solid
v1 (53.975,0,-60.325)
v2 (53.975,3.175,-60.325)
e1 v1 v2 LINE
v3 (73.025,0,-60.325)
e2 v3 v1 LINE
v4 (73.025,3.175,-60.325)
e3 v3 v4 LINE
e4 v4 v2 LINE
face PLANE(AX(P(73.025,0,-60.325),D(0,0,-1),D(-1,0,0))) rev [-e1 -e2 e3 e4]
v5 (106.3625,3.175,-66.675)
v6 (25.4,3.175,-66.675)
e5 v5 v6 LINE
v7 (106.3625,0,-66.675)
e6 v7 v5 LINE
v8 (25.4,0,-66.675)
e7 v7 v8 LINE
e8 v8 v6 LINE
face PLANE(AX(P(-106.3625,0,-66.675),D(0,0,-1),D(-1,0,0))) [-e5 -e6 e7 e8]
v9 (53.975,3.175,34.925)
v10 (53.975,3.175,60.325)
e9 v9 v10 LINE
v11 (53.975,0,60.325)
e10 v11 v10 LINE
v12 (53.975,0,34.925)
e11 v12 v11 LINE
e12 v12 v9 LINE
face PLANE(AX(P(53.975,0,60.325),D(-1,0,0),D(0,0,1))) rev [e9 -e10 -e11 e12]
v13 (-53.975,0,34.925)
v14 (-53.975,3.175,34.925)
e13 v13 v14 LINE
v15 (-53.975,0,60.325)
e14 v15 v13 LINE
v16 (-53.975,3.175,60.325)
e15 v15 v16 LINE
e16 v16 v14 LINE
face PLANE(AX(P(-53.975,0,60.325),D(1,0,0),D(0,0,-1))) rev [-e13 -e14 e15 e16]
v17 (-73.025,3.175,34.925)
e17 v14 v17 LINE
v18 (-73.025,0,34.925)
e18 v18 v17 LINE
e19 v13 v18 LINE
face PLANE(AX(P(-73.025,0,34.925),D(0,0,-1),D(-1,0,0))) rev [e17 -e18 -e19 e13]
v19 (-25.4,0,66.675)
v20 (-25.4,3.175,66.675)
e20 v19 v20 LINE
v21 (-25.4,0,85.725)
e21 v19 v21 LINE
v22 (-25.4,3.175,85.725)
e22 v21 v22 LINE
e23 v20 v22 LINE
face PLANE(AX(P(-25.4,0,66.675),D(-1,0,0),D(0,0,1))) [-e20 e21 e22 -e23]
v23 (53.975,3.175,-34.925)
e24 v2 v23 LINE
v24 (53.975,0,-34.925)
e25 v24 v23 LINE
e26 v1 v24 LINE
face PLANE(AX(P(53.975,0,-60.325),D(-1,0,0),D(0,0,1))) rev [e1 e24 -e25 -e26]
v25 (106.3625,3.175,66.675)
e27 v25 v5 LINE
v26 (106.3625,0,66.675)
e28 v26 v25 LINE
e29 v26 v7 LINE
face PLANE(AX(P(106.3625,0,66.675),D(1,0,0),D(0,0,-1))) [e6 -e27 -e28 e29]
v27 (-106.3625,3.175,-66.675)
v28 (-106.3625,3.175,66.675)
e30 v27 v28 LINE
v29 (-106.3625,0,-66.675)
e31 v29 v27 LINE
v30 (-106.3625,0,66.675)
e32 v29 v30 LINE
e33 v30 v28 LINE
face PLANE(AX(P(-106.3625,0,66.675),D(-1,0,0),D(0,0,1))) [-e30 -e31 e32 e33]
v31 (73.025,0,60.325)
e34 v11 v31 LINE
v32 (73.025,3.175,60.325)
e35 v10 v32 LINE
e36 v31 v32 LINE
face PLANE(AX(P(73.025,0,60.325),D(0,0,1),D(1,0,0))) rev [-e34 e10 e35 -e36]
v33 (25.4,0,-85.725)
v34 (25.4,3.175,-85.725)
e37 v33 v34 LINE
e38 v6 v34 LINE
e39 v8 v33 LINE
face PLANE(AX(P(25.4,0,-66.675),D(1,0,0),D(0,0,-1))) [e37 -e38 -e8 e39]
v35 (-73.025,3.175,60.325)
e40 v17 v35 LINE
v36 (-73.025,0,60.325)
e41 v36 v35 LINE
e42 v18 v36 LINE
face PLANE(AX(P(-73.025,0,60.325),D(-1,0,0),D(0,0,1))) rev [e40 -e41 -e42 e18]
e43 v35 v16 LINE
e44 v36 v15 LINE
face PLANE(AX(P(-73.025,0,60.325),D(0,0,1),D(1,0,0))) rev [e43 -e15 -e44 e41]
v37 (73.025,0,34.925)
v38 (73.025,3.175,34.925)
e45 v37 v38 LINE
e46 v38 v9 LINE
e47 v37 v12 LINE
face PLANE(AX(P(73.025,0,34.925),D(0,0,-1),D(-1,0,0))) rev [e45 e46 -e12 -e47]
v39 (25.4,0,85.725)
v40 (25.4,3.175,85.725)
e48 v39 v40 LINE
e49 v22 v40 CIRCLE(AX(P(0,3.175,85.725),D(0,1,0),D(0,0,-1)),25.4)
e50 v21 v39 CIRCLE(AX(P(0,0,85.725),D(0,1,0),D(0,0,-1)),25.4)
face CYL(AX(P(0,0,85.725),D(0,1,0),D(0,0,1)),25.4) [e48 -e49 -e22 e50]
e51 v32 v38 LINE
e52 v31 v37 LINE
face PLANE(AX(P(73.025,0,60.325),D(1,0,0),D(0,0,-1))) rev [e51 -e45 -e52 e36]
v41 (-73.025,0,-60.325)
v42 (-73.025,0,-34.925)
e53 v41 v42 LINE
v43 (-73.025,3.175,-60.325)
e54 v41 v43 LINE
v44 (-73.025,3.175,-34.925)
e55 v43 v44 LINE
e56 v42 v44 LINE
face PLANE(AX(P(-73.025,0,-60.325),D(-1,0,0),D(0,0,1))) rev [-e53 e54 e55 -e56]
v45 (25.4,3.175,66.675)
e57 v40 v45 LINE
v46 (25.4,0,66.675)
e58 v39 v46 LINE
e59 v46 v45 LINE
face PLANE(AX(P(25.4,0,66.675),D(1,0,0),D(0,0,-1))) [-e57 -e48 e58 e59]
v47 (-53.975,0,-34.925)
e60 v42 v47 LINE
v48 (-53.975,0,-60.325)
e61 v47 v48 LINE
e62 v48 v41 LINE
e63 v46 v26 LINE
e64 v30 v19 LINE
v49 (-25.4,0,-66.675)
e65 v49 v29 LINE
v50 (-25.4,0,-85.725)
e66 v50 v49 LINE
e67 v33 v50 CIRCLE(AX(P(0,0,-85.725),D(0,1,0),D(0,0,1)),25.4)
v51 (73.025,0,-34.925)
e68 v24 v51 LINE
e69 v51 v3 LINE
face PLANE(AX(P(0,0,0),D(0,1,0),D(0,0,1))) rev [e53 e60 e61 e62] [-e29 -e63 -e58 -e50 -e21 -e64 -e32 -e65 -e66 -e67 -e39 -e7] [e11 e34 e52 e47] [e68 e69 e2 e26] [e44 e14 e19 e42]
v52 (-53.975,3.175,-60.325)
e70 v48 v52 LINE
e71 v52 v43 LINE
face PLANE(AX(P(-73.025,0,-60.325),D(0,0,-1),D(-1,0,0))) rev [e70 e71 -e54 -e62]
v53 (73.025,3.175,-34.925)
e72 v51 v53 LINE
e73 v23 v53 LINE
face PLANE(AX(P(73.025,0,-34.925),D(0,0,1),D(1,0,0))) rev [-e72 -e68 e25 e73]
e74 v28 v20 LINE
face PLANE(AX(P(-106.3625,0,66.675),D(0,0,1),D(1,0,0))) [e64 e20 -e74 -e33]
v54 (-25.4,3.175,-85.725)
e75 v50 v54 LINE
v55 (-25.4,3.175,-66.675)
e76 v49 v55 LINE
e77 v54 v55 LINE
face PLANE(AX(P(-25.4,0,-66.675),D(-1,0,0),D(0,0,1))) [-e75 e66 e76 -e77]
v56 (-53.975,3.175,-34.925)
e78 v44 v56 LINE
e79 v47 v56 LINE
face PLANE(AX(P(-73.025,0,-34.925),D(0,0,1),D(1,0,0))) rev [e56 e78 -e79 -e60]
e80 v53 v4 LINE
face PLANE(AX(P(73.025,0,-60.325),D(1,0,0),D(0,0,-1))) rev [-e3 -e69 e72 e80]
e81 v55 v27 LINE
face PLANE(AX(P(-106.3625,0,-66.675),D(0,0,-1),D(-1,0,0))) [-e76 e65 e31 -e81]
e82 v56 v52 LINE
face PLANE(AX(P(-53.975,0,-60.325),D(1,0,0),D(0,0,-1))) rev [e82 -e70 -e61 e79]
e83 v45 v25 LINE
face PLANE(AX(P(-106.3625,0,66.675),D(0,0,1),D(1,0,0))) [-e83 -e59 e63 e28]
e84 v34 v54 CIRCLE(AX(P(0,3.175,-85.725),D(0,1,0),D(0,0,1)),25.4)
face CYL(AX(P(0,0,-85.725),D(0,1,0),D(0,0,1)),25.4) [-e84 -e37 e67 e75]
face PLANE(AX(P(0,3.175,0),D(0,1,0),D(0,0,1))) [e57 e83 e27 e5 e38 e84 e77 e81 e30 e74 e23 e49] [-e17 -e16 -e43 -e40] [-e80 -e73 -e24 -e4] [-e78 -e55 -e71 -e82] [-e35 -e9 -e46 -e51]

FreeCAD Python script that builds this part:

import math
import FreeCAD as App
import Part
import Sketcher

V = App.Vector
Q = App.Units.Quantity

doc = App.newDocument("Part")
body = doc.addObject("PartDesign::Body", "Body")

# Sketch on XZ plane
sketch1 = body.newObject("Sketcher::SketchObject", "Sketch")
sketch1.AttachmentSupport = (doc.getObject("XZ_Plane"), [""])
sketch1.MapMode = "FlatFace"
sketch1.addGeometry(Part.Circle(V(0, 0, 0), V(0, 0, 1), 138), False)
sketch1.addConstraint(Sketcher.Constraint("Coincident", 0, 3, -1, 1))
sketch1.addConstraint(Sketcher.Constraint("Diameter", 0, Q("275.883153 mm")))
pad1 = body.newObject("PartDesign::Pad", "Pad")
pad1.Profile = sketch1
pad1.Length = Q("0.125 in")
pad1.Reversed = True

# Sketch on XZ plane
sketch2 = body.newObject("Sketcher::SketchObject", "Sketch001")
sketch2.AttachmentSupport = (doc.getObject("XZ_Plane"), [""])
sketch2.MapMode = "FlatFace"
sketch2.AttachmentOffset = App.Placement(V(0, 0, -0.125 * 25.4), App.Rotation())
sketch2.addGeometry(Part.LineSegment(V(-54, -35, 0), V(-54, -60, 0)), False)
sketch2.addGeometry(Part.LineSegment(V(-54, -60, 0), V(-73, -60, 0)), False)
sketch2.addGeometry(Part.LineSegment(V(-73, -60, 0), V(-73, -35, 0)), False)
sketch2.addGeometry(Part.LineSegment(V(-73, -35, 0), V(-54, -35, 0)), False)
sketch2.addGeometry(Part.LineSegment(V(-54, 60, 0), V(-54, 35, 0)), False)
sketch2.addGeometry(Part.LineSegment(V(-54, 35, 0), V(-73, 35, 0)), False)
sketch2.addGeometry(Part.LineSegment(V(-73, 35, 0), V(-73, 60, 0)), False)
sketch2.addGeometry(Part.LineSegment(V(-73, 60, 0), V(-54, 60, 0)), False)
sketch2.addGeometry(Part.LineSegment(V(73, 60, 0), V(73, 35, 0)), False)
sketch2.addGeometry(Part.LineSegment(V(73, 35, 0), V(54, 35, 0)), False)
sketch2.addGeometry(Part.LineSegment(V(54, 35, 0), V(54, 60, 0)), False)
sketch2.addGeometry(Part.LineSegment(V(54, 60, 0), V(73, 60, 0)), False)
sketch2.addGeometry(Part.LineSegment(V(73, -35, 0), V(73, -60, 0)), False)
sketch2.addGeometry(Part.LineSegment(V(73, -60, 0), V(54, -60, 0)), False)
sketch2.addGeometry(Part.LineSegment(V(54, -60, 0), V(54, -35, 0)), False)
sketch2.addGeometry(Part.LineSegment(V(54, -35, 0), V(73, -35, 0)), False)
sketch2.addConstraint(Sketcher.Constraint("Coincident", 0, 2, 1, 1))
sketch2.addConstraint(Sketcher.Constraint("Coincident", 1, 2, 2, 1))
sketch2.addConstraint(Sketcher.Constraint("Coincident", 2, 2, 3, 1))
sketch2.addConstraint(Sketcher.Constraint("Coincident", 3, 2, 0, 1))
sketch2.addConstraint(Sketcher.Constraint("Coincident", 4, 2, 5, 1))
sketch2.addConstraint(Sketcher.Constraint("Coincident", 5, 2, 6, 1))
sketch2.addConstraint(Sketcher.Constraint("Coincident", 6, 2, 7, 1))
sketch2.addConstraint(Sketcher.Constraint("Coincident", 7, 2, 4, 1))
sketch2.addConstraint(Sketcher.Constraint("Coincident", 8, 2, 9, 1))
sketch2.addConstraint(Sketcher.Constraint("Coincident", 9, 2, 10, 1))
sketch2.addConstraint(Sketcher.Constraint("Coincident", 10, 2, 11, 1))
sketch2.addConstraint(Sketcher.Constraint("Coincident", 11, 2, 8, 1))
sketch2.addConstraint(Sketcher.Constraint("Coincident", 12, 2, 13, 1))
sketch2.addConstraint(Sketcher.Constraint("Coincident", 13, 2, 14, 1))
sketch2.addConstraint(Sketcher.Constraint("Coincident", 14, 2, 15, 1))
sketch2.addConstraint(Sketcher.Constraint("Coincident", 15, 2, 12, 1))
sketch2.addConstraint(Sketcher.Constraint("Vertical", 0))
sketch2.addConstraint(Sketcher.Constraint("Horizontal", 1))
sketch2.addConstraint(Sketcher.Constraint("Vertical", 2))
sketch2.addConstraint(Sketcher.Constraint("Horizontal", 3))
sketch2.addConstraint(Sketcher.Constraint("Vertical", 4))
sketch2.addConstraint(Sketcher.Constraint("Horizontal", 5))
sketch2.addConstraint(Sketcher.Constraint("Vertical", 6))
sketch2.addConstraint(Sketcher.Constraint("Horizontal", 7))
sketch2.addConstraint(Sketcher.Constraint("Vertical", 8))
sketch2.addConstraint(Sketcher.Constraint("Horizontal", 9))
sketch2.addConstraint(Sketcher.Constraint("Vertical", 10))
sketch2.addConstraint(Sketcher.Constraint("Horizontal", 11))
sketch2.addConstraint(Sketcher.Constraint("Vertical", 12))
sketch2.addConstraint(Sketcher.Constraint("Horizontal", 13))
sketch2.addConstraint(Sketcher.Constraint("Vertical", 14))
sketch2.addConstraint(Sketcher.Constraint("Horizontal", 15))
sketch2.addConstraint(Sketcher.Constraint("Symmetric", 2, 2, 8, 2, -1, 1))
sketch2.addConstraint(Sketcher.Constraint("Symmetric", 0, 2, 10, 2, -1, 1))
sketch2.addConstraint(Sketcher.Constraint("Symmetric", 6, 2, 12, 2, -1, 1))
sketch2.addConstraint(Sketcher.Constraint("Symmetric", 4, 2, 14, 2, -1, 1))
sketch2.addConstraint(Sketcher.Constraint("Symmetric", 5, 2, 8, 2, -2))
sketch2.addConstraint(Sketcher.Constraint("Symmetric", 7, 2, 10, 2, -2))
sketch2.addConstraint(Sketcher.Constraint("DistanceY", 0, 2, 0, 1, Q("1 in")))
sketch2.addConstraint(Sketcher.Constraint("DistanceX", 4, 2, 8, 2, Q("5 in")))
sketch2.addConstraint(Sketcher.Constraint("DistanceX", 1, 2, 1, 1, Q("0.75 in")))
sketch2.addConstraint(Sketcher.Constraint("DistanceY", 3, 2, 4, 2, Q("2.75 in")))
pocket1 = body.newObject("PartDesign::Pocket", "Pocket")
pocket1.Profile = sketch2
pocket1.Type = "ThroughAll"
pocket1.Reversed = True

# Sketch on XZ plane
sketch3 = body.newObject("Sketcher::SketchObject", "Sketch002")
sketch3.AttachmentSupport = (doc.getObject("XZ_Plane"), [""])
sketch3.MapMode = "FlatFace"
sketch3.AttachmentOffset = App.Placement(V(0, 0, -0.125 * 25.4), App.Rotation())
sketch3.addGeometry(Part.LineSegment(V(-178, -178, 0), V(-178, 178, 0)), False)
sketch3.addGeometry(Part.LineSegment(V(-178, 178, 0), V(178, 178, 0)), False)
sketch3.addGeometry(Part.LineSegment(V(178, 178, 0), V(178, -178, 0)), False)
sketch3.addGeometry(Part.LineSegment(V(178, -178, 0), V(-178, -178, 0)), False)
sketch3.addGeometry(Part.LineSegment(V(106, 67, 0), V(-106, 67, 0)), False)
sketch3.addGeometry(Part.LineSegment(V(-106, 67, 0), V(-106, -67, 0)), False)
sketch3.addGeometry(Part.LineSegment(V(-106, -67, 0), V(106, -67, 0)), False)
sketch3.addGeometry(Part.LineSegment(V(106, -67, 0), V(106, 67, 0)), False)
sketch3.addConstraint(Sketcher.Constraint("Coincident", 0, 2, 1, 1))
sketch3.addConstraint(Sketcher.Constraint("Coincident", 1, 2, 2, 1))
sketch3.addConstraint(Sketcher.Constraint("Coincident", 2, 2, 3, 1))
sketch3.addConstraint(Sketcher.Constraint("Coincident", 3, 2, 0, 1))
sketch3.addConstraint(Sketcher.Constraint("Coincident", 4, 2, 5, 1))
sketch3.addConstraint(Sketcher.Constraint("Coincident", 5, 2, 6, 1))
sketch3.addConstraint(Sketcher.Constraint("Coincident", 6, 2, 7, 1))
sketch3.addConstraint(Sketcher.Constraint("Coincident", 7, 2, 4, 1))
sketch3.addConstraint(Sketcher.Constraint("Vertical", 0))
sketch3.addConstraint(Sketcher.Constraint("Horizontal", 1))
sketch3.addConstraint(Sketcher.Constraint("Vertical", 2))
sketch3.addConstraint(Sketcher.Constraint("Horizontal", 3))
sketch3.addConstraint(Sketcher.Constraint("Horizontal", 4))
sketch3.addConstraint(Sketcher.Constraint("Vertical", 5))
sketch3.addConstraint(Sketcher.Constraint("Horizontal", 6))
sketch3.addConstraint(Sketcher.Constraint("Vertical", 7))
sketch3.addConstraint(Sketcher.Constraint("Symmetric", 0, 2, 2, 2, -1, 1))
sketch3.addConstraint(Sketcher.Constraint("Symmetric", 4, 2, 6, 2, -1, 1))
sketch3.addConstraint(Sketcher.Constraint("Equal", 3, 0))
sketch3.addConstraint(Sketcher.Constraint("DistanceY", 5, 2, 5, 1, Q("5.25 in")))
sketch3.addConstraint(Sketcher.Constraint("DistanceX", 4, 2, 4, 1, Q("8.375 in")))
sketch3.addConstraint(Sketcher.Constraint("DistanceX", 1, 1, 1, 2, Q("355.918 mm")))
pocket2 = body.newObject("PartDesign::Pocket", "Pocket001")
pocket2.Profile = sketch3
pocket2.Type = "ThroughAll"
pocket2.Reversed = True

# Sketch on XZ plane
sketch4 = body.newObject("Sketcher::SketchObject", "Sketch003")
sketch4.AttachmentSupport = (doc.getObject("XZ_Plane"), [""])
sketch4.MapMode = "FlatFace"
sketch4.AttachmentOffset = App.Placement(V(0, 0, -0.125 * 25.4), App.Rotation())
sketch4.addGeometry(Part.LineSegment(V(-25, -67, 0), V(25, -67, 0)), False)
sketch4.addGeometry(Part.LineSegment(V(25, -67, 0), V(25, -86, 0)), False)
sketch4.addGeometry(Part.ArcOfCircle(Part.Circle(V(0, -86, 0), V(0, 0, 1), 25), math.radians(180), math.radians(360)), False)
sketch4.addGeometry(Part.LineSegment(V(-25, -86, 0), V(-25, -67, 0)), False)
sketch4.addGeometry(Part.LineSegment(V(-25, 67, 0), V(-25, 86, 0)), False)
sketch4.addGeometry(Part.ArcOfCircle(Part.Circle(V(0, 86, 0), V(0, 0, 1), 25), math.radians(0), math.radians(180)), False)
sketch4.addGeometry(Part.LineSegment(V(25, 86, 0), V(25, 67, 0)), False)
sketch4.addGeometry(Part.LineSegment(V(25, 67, 0), V(-25, 67, 0)), False)
sketch4.addConstraint(Sketcher.Constraint("Coincident", 0, 2, 1, 1))
sketch4.addConstraint(Sketcher.Constraint("Tangent", 1, 2, 2, 2))
sketch4.addConstraint(Sketcher.Constraint("Tangent", 2, 1, 3, 1))
sketch4.addConstraint(Sketcher.Constraint("Coincident", 3, 2, 0, 1))
sketch4.addConstraint(Sketcher.Constraint("Tangent", 4, 2, 5, 2))
sketch4.addConstraint(Sketcher.Constraint("Tangent", 5, 1, 6, 1))
sketch4.addConstraint(Sketcher.Constraint("Coincident", 6, 2, 7, 1))
sketch4.addConstraint(Sketcher.Constraint("Coincident", 7, 2, 4, 1))
sketch4.addConstraint(Sketcher.Constraint("Horizontal", 0))
sketch4.addConstraint(Sketcher.Constraint("Vertical", 1))
sketch4.addConstraint(Sketcher.Constraint("Vertical", 3))
sketch4.addConstraint(Sketcher.Constraint("Vertical", 4))
sketch4.addConstraint(Sketcher.Constraint("Vertical", 6))
sketch4.addConstraint(Sketcher.Constraint("Horizontal", 7))
sketch4.addConstraint(Sketcher.Constraint("Equal", 2, 5))
sketch4.addConstraint(Sketcher.Constraint("Symmetric", 2, 3, 5, 3, -1, 1))
sketch4.addConstraint(Sketcher.Constraint("Symmetric", 0, 2, 6, 2, -1))
sketch4.addConstraint(Sketcher.Constraint("Radius", 2, Q("1 in")))
sketch4.addConstraint(Sketcher.Constraint("DistanceY", 0, 2, 5, 3, Q("6 in")))
sketch4.addConstraint(Sketcher.Constraint("DistanceY", 1, 2, 1, 1, Q("0.75 in")))
pad2 = body.newObject("PartDesign::Pad", "Pad001")
pad2.Profile = sketch4
pad2.Type = "UpToLast"

doc.recompute()
